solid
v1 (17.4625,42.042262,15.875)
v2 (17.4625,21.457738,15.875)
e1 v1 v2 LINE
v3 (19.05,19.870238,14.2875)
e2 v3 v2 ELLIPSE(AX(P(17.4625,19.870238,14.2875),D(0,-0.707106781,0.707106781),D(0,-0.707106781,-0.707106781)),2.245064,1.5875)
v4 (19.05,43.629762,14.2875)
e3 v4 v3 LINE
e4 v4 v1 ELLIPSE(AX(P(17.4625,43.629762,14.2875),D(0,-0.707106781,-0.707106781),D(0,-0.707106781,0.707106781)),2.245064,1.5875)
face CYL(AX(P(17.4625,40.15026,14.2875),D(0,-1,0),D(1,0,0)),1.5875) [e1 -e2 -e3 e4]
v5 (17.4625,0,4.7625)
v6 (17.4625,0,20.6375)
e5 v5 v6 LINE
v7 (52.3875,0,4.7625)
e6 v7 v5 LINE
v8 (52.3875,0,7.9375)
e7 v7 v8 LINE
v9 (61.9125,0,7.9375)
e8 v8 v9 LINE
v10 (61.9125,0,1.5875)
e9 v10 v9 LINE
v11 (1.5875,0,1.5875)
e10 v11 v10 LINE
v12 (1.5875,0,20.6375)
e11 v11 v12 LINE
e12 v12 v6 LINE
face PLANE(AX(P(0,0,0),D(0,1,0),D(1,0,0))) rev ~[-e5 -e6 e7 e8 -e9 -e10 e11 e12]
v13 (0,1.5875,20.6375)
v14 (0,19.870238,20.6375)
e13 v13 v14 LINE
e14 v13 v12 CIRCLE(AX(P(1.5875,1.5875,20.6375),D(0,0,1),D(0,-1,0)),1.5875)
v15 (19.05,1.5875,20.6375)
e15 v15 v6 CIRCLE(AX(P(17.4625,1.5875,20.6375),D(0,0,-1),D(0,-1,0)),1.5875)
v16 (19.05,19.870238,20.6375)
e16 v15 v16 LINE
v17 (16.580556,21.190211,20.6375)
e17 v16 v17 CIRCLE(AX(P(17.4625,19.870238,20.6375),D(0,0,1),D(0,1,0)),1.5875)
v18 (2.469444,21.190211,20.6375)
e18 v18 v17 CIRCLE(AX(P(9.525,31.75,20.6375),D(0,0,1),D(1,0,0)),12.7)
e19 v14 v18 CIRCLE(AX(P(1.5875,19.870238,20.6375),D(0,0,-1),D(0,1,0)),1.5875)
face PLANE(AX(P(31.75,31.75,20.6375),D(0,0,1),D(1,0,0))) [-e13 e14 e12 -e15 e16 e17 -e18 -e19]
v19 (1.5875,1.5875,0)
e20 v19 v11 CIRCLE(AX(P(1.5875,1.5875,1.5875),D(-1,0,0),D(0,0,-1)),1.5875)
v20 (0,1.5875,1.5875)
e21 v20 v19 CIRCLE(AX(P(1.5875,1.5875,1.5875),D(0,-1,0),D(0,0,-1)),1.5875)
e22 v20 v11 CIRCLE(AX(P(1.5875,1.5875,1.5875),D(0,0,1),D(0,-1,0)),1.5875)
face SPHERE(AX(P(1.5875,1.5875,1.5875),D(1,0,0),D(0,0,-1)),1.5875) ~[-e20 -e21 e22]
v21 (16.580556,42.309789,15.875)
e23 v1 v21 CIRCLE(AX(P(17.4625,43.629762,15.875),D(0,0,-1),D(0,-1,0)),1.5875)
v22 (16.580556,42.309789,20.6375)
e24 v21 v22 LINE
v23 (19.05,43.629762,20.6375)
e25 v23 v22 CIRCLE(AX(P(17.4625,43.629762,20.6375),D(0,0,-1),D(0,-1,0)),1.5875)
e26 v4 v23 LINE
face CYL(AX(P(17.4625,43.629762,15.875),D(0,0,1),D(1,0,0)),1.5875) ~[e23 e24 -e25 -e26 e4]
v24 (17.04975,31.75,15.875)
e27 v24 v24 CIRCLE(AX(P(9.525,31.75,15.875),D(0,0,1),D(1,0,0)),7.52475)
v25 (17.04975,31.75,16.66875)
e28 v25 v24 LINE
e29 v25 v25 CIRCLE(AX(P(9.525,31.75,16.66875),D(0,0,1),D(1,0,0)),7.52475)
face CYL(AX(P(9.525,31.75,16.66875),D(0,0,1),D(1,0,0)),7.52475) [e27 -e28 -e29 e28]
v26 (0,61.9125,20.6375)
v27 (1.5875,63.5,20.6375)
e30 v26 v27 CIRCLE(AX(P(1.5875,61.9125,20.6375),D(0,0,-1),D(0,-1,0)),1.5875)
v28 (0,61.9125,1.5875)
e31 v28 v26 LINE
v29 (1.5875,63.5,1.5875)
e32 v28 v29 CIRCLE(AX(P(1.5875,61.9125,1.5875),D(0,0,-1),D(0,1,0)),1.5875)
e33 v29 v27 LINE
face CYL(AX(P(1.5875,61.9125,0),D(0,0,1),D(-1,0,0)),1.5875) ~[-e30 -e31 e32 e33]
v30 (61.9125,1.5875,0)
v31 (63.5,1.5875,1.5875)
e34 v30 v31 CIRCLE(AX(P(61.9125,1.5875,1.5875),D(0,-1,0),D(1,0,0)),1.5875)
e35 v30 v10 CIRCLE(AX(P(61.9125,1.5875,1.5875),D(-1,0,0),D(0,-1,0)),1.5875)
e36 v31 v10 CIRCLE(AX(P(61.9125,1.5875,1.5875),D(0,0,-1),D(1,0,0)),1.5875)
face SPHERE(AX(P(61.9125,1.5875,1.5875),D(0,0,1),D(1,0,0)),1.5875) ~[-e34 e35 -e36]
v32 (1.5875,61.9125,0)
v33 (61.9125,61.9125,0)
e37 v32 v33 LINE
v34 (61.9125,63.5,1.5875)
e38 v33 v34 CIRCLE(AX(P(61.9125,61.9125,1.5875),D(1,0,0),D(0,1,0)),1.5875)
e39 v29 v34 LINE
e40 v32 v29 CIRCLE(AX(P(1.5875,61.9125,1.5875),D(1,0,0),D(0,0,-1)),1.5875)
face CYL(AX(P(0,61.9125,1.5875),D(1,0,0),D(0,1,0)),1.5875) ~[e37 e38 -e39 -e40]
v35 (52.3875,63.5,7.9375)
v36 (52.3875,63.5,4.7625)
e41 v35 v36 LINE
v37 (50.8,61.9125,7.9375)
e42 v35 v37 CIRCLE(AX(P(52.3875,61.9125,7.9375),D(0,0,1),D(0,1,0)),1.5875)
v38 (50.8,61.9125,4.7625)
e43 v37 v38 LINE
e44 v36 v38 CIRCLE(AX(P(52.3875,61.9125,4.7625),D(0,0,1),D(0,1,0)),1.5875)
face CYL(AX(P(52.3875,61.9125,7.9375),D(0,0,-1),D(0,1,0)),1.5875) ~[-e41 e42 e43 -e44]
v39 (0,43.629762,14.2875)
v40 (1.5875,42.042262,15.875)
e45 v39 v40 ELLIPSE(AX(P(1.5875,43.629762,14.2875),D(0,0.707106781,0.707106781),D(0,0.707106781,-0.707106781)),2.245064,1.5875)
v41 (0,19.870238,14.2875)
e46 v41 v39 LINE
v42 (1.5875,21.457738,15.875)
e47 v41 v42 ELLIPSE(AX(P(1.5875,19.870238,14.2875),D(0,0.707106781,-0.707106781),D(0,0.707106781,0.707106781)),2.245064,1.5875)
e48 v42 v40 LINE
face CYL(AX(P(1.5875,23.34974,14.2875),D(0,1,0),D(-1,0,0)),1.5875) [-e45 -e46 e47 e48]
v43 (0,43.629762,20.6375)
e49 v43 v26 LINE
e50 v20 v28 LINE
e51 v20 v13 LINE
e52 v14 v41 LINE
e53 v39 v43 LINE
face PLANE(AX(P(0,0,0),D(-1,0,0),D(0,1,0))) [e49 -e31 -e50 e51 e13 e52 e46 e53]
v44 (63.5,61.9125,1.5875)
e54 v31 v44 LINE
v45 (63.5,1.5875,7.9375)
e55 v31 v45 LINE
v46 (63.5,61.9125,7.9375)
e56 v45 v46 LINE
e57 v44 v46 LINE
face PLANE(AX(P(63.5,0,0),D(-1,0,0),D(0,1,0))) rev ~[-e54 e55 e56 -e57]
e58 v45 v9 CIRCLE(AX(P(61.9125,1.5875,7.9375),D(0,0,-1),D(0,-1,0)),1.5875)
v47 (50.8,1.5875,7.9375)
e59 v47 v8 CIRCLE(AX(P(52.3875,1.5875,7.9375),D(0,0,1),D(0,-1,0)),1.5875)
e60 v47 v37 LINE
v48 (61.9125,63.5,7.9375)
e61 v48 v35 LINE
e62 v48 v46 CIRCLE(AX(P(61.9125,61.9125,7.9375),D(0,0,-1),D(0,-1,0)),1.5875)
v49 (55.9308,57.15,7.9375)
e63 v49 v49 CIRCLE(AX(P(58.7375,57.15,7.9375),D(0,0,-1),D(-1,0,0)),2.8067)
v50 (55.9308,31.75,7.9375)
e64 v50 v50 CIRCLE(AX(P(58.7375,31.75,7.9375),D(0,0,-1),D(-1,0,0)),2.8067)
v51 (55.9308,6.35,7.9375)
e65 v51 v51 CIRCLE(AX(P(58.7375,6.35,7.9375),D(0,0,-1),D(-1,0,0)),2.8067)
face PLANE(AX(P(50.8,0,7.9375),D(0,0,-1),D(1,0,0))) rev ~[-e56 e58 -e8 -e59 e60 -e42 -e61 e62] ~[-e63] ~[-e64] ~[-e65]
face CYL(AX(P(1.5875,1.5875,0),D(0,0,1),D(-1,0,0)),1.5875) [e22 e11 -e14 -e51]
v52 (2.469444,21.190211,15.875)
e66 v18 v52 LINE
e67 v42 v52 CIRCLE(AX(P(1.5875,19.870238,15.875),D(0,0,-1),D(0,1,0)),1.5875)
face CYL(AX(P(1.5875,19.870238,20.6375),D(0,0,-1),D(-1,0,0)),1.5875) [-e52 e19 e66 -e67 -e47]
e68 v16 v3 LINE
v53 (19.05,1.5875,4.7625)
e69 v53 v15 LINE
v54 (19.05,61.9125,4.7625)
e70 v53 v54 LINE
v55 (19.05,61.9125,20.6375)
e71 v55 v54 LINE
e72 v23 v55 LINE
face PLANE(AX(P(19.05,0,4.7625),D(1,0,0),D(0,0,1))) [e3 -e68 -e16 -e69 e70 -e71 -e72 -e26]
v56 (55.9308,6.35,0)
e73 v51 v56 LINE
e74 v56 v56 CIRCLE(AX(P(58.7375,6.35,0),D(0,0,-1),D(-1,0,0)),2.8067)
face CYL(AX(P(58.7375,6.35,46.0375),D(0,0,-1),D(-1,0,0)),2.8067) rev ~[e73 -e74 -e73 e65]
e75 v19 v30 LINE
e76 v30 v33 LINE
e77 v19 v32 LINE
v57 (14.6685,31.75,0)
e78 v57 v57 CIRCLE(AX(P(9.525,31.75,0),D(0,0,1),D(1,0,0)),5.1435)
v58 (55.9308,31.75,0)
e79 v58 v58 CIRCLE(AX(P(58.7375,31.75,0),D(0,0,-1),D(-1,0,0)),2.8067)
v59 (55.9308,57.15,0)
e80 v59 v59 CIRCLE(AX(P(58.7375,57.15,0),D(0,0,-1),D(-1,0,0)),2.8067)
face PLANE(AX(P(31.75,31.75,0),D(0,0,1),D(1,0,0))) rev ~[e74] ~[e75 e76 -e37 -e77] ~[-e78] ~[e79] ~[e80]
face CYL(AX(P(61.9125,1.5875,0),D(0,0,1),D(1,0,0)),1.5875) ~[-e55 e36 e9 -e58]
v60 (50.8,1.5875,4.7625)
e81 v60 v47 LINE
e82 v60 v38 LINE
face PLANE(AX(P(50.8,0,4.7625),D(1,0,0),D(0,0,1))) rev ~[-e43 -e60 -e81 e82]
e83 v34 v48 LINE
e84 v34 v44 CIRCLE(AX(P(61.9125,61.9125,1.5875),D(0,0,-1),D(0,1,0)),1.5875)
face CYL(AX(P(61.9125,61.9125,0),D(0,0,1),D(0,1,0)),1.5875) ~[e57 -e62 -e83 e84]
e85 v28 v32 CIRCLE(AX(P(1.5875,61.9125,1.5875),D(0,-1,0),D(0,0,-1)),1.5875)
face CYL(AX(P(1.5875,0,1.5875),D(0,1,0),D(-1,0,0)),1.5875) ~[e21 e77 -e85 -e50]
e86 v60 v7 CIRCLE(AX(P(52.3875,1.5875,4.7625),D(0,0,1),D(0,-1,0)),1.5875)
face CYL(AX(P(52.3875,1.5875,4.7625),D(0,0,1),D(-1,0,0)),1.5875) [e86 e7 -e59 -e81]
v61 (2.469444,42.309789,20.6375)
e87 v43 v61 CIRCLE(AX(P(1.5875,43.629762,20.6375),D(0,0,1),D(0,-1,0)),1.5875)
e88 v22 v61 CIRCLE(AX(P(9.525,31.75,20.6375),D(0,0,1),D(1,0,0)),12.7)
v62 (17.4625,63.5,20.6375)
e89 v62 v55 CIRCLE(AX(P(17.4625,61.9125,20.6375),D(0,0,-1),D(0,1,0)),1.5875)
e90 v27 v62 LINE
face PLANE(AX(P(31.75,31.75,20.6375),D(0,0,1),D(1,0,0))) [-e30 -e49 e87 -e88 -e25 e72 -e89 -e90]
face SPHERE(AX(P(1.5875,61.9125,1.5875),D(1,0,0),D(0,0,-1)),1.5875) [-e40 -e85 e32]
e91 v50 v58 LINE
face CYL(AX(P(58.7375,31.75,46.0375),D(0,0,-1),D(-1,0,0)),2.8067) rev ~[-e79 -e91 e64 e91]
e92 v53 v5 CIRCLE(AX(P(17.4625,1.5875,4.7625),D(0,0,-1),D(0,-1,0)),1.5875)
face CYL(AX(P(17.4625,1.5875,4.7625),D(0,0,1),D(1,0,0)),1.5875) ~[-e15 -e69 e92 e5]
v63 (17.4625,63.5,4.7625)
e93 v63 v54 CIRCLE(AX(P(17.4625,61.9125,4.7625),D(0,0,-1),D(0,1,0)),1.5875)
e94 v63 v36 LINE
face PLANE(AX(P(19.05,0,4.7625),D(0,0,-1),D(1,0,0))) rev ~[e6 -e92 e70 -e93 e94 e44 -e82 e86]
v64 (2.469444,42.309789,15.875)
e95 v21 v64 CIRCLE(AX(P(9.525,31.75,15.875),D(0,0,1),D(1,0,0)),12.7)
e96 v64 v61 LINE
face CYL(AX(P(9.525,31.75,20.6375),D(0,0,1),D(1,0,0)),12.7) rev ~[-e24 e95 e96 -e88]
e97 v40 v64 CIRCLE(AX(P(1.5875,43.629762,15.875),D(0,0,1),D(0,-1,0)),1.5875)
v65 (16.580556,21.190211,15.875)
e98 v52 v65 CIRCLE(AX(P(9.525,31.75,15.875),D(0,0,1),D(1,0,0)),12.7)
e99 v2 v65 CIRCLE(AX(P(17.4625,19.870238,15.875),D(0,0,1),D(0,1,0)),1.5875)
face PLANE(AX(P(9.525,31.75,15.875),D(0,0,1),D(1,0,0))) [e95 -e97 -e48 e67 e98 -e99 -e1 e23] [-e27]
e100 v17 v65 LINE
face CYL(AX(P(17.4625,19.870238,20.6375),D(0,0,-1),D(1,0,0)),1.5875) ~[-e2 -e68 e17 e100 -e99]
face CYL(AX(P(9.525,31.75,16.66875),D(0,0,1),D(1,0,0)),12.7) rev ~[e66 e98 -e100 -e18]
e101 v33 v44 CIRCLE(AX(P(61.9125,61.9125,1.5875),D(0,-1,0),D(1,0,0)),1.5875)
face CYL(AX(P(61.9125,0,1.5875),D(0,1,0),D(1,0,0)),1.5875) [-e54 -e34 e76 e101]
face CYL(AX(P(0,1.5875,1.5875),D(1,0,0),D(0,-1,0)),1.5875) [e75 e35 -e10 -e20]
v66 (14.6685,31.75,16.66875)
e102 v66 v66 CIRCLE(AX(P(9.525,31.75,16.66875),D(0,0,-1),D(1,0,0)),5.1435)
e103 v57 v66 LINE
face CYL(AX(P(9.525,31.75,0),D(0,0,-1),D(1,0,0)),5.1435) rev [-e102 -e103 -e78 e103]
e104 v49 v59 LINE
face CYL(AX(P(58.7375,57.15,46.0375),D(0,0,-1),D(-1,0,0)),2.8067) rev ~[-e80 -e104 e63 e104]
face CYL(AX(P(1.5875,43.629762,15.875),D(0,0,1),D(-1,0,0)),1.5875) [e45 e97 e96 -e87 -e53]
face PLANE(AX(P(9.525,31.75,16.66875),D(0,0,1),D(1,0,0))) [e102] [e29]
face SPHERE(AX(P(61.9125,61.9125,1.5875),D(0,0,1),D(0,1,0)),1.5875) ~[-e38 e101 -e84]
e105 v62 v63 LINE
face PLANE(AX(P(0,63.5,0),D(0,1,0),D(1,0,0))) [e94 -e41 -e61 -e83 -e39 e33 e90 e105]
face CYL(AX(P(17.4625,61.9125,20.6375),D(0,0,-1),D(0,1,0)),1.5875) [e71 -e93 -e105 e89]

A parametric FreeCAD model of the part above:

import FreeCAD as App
import Part
import Sketcher
Q = App.Units.Quantity


def edges_at(feature, points):
    """Names of the edges that pass closest to the given points."""
    edges = feature.Shape.Edges
    near = lambda p: min(range(len(edges)), key=lambda i: edges[i].distToShape(Part.Vertex(*p))[0])
    return sorted({f"Edge{near(p) + 1}" for p in points})


def add_polygon(sketch, points):
    """Adds a closed chain of lines whose ends are joined by coincident constraints."""
    first, n = sketch.GeometryCount, len(points)
    for a, b in zip(points, points[1:] + points[:1]):
        sketch.addGeometry(Part.LineSegment(App.Vector(*a, 0), App.Vector(*b, 0)), False)
    for i in range(n):
        sketch.addConstraint(Sketcher.Constraint("Coincident", first + i, 2, first + (i + 1) % n, 1))

doc = App.newDocument("Part")
body = doc.addObject("PartDesign::Body", "Body")

sketch1 = body.newObject("Sketcher::SketchObject", "Sketch")
sketch1.AttachmentSupport = (doc.getObject("XY_Plane"), [""])
sketch1.MapMode = "FlatFace"
add_polygon(sketch1, [(0, 63.5), (0, 0), (63.5, 0), (63.5, 63.5)])
sketch1.addGeometry(Part.Circle(App.Vector(9.525, 31.75, 0), App.Vector(0, 0, 1), 5.1435), False)
sketch1.addConstraint([
    Sketcher.Constraint("Vertical", 0),
    Sketcher.Constraint("Horizontal", 1),
    Sketcher.Constraint("Vertical", 2),
    Sketcher.Constraint("Horizontal", 3),
    Sketcher.Constraint("Coincident", 0, 2, -1, 1),
    Sketcher.Constraint("Equal", 3, 0),
    Sketcher.Constraint("Diameter", 4, Q("0.405 in")),
    Sketcher.Constraint("DistanceX", 1, 1, 1, 2, Q("2.5 in")),
    Sketcher.Constraint("DistanceY", -1, 1, 4, 3, Q("1.25 in")),
    Sketcher.Constraint("DistanceX", -1, 1, 4, 3, Q("0.375 in")),
])
pad1 = body.newObject("PartDesign::Pad", "Pad")
pad1.Profile = sketch1
pad1.Length = Q("0.8125 in")

sketch2 = body.newObject("Sketcher::SketchObject", "Sketch001")
sketch2.AttachmentSupport = (doc.getObject("XZ_Plane"), [""])
sketch2.MapMode = "FlatFace"
add_polygon(sketch2, [(19.05, 20.6375), (19.05, 4.7625), (50.8, 4.7625), (50.8, 20.6375)])
sketch2.addConstraint([
    Sketcher.Constraint("Vertical", 0),
    Sketcher.Constraint("Horizontal", 1),
    Sketcher.Constraint("Vertical", 2),
    Sketcher.Constraint("Horizontal", 3),
    Sketcher.Constraint("DistanceX", -1, 1, 1, 2, Q("2 in")),
    Sketcher.Constraint("DistanceX", 1, 1, 1, 2, Q("1.25 in")),
    Sketcher.Constraint("DistanceY", 0, 2, 0, 1, Q("0.625 in")),
    Sketcher.Constraint("DistanceY", -1, 1, 0, 2, Q("0.1875 in")),
])
pocket1 = body.newObject("PartDesign::Pocket", "Pocket")
pocket1.Profile = sketch2
pocket1.Type = "ThroughAll"

sketch3 = body.newObject("Sketcher::SketchObject", "Sketch002")
sketch3.AttachmentSupport = (doc.getObject("XZ_Plane"), [""])
sketch3.MapMode = "FlatFace"
add_polygon(sketch3, [(50.8, 20.6375), (50.8, 7.9375), (63.5, 7.9375), (63.5, 20.6375)])
sketch3.addConstraint([
    Sketcher.Constraint("Vertical", 0),
    Sketcher.Constraint("Horizontal", 1),
    Sketcher.Constraint("Vertical", 2),
    Sketcher.Constraint("Horizontal", 3),
    Sketcher.Constraint("Equal", 3, 0),
    Sketcher.Constraint("DistanceX", 1, 1, 1, 2, Q("0.5 in")),
    Sketcher.Constraint("DistanceX", -1, 1, 0, 2, Q("2 in")),
    Sketcher.Constraint("DistanceY", -1, 1, 0, 2, Q("0.3125 in")),
])
pocket2 = body.newObject("PartDesign::Pocket", "Pocket001")
pocket2.Profile = sketch3
pocket2.Type = "ThroughAll"

sketch4 = body.newObject("Sketcher::SketchObject", "Sketch003")
sketch4.AttachmentSupport = (doc.getObject("XY_Plane"), [""])
sketch4.MapMode = "FlatFace"
sketch4.AttachmentOffset = App.Placement(App.Vector(0, 0, 0.8125 * 25.4), App.Rotation())
sketch4.addGeometry(Part.Circle(App.Vector(9.525, 31.75, 0), App.Vector(0, 0, 1), 12.7), False)
sketch4.addConstraint([
    Sketcher.Constraint("Diameter", 0, Q("1 in")),
    Sketcher.Constraint("DistanceY", -1, 1, 0, 3, Q("1.25 in")),
    Sketcher.Constraint("DistanceX", -1, 1, 0, 3, Q("0.375 in")),
])
pocket3 = body.newObject("PartDesign::Pocket", "Pocket002")
pocket3.Profile = sketch4
pocket3.Length = Q("0.15625 in")

sketch5 = body.newObject("Sketcher::SketchObject", "Sketch004")
sketch5.AttachmentSupport = (doc.getObject("XY_Plane"), [""])
sketch5.MapMode = "FlatFace"
sketch5.AttachmentOffset = App.Placement(App.Vector(0, 0, 0.65625 * 25.4), App.Rotation())
sketch5.addGeometry([
    Part.Circle(App.Vector(9.525, 31.75, 0), App.Vector(0, 0, 1), 12.7),
    Part.Circle(App.Vector(9.525, 31.75, 0), App.Vector(0, 0, 1), 7.52475),
], False)
sketch5.addConstraint([
    Sketcher.Constraint("Coincident", 1, 3, 0, 3),
    Sketcher.Constraint("Diameter", 0, Q("1 in")),
    Sketcher.Constraint("Diameter", 1, Q("0.5925 in")),
    Sketcher.Constraint("DistanceY", -1, 1, 0, 3, Q("1.25 in")),
    Sketcher.Constraint("DistanceX", -1, 1, 0, 3, Q("0.375 in")),
])
pocket4 = body.newObject("PartDesign::Pocket", "Pocket003")
pocket4.Profile = sketch5
pocket4.Length = Q("0.03125 in")
doc.recompute()

fillet = body.newObject("PartDesign::Fillet", "Fillet")
fillet.Base = (pocket4, edges_at(pocket4, [
    (19.05, 63.5, 12.7),
    (50.8, 63.5, 6.35),
    (19.05, 0, 12.7),
    (50.8, 0, 6.35),
    (63.5, 63.5, 3.969),
    (63.5, 0, 3.969),
    (31.75, 63.5, 0),
    (63.5, 31.75, 0),
    (19.05, 40.15, 18.256),
    (19.05, 23.35, 18.256),
    (31.75, 0, 0),
    (0, 40.15, 18.256),
    (0, 23.35, 18.256),
    (0, 31.75, 0),
    (19.05, 31.75, 15.875),
    (0, 31.75, 15.875),
    (0, 63.5, 10.319),
    (0, 0, 10.319),
]))
fillet.Radius = Q("0.0625 in")

sketch6 = body.newObject("Sketcher::SketchObject", "Sketch005")
sketch6.AttachmentSupport = (doc.getObject("XY_Plane"), [""])
sketch6.MapMode = "FlatFace"
sketch6.AttachmentOffset = App.Placement(App.Vector(0, 0, 0.8125 * 25.4), App.Rotation())
sketch6.addGeometry([
    Part.Circle(App.Vector(58.7375, 6.35, 0), App.Vector(0, 0, 1), 2.8067),
    Part.Circle(App.Vector(58.7375, 31.75, 0), App.Vector(0, 0, 1), 2.8067),
    Part.Circle(App.Vector(58.7375, 57.15, 0), App.Vector(0, 0, 1), 2.8067),
], False)
sketch6.addConstraint([
    Sketcher.Constraint("Equal", 0, 1),
    Sketcher.Constraint("Equal", 1, 2),
    Sketcher.Constraint("Vertical", 0, 3, 1, 3),
    Sketcher.Constraint("Vertical", 1, 3, 2, 3),
    Sketcher.Constraint("Diameter", 0, Q("0.221 in")),
    Sketcher.Constraint("DistanceY", 0, 3, 1, 3, Q("1 in")),
    Sketcher.Constraint("DistanceY", 1, 3, 2, 3, Q("1 in")),
    Sketcher.Constraint("DistanceY", -1, 1, 0, 3, Q("0.25 in")),
    Sketcher.Constraint("DistanceX", -1, 1, 0, 3, Q("2.3125 in")),
])
doc.recompute()
hole = body.newObject("PartDesign::Hole", "Hole")
hole.Profile = sketch6
hole.ThreadType = "None"
hole.Diameter = Q("0.221 in")
hole.DepthType = "Dimension"
hole.Depth = Q("1 in")
hole.DrillPoint = "Angled"
hole.DrillPointAngle = 118

doc.recompute()
